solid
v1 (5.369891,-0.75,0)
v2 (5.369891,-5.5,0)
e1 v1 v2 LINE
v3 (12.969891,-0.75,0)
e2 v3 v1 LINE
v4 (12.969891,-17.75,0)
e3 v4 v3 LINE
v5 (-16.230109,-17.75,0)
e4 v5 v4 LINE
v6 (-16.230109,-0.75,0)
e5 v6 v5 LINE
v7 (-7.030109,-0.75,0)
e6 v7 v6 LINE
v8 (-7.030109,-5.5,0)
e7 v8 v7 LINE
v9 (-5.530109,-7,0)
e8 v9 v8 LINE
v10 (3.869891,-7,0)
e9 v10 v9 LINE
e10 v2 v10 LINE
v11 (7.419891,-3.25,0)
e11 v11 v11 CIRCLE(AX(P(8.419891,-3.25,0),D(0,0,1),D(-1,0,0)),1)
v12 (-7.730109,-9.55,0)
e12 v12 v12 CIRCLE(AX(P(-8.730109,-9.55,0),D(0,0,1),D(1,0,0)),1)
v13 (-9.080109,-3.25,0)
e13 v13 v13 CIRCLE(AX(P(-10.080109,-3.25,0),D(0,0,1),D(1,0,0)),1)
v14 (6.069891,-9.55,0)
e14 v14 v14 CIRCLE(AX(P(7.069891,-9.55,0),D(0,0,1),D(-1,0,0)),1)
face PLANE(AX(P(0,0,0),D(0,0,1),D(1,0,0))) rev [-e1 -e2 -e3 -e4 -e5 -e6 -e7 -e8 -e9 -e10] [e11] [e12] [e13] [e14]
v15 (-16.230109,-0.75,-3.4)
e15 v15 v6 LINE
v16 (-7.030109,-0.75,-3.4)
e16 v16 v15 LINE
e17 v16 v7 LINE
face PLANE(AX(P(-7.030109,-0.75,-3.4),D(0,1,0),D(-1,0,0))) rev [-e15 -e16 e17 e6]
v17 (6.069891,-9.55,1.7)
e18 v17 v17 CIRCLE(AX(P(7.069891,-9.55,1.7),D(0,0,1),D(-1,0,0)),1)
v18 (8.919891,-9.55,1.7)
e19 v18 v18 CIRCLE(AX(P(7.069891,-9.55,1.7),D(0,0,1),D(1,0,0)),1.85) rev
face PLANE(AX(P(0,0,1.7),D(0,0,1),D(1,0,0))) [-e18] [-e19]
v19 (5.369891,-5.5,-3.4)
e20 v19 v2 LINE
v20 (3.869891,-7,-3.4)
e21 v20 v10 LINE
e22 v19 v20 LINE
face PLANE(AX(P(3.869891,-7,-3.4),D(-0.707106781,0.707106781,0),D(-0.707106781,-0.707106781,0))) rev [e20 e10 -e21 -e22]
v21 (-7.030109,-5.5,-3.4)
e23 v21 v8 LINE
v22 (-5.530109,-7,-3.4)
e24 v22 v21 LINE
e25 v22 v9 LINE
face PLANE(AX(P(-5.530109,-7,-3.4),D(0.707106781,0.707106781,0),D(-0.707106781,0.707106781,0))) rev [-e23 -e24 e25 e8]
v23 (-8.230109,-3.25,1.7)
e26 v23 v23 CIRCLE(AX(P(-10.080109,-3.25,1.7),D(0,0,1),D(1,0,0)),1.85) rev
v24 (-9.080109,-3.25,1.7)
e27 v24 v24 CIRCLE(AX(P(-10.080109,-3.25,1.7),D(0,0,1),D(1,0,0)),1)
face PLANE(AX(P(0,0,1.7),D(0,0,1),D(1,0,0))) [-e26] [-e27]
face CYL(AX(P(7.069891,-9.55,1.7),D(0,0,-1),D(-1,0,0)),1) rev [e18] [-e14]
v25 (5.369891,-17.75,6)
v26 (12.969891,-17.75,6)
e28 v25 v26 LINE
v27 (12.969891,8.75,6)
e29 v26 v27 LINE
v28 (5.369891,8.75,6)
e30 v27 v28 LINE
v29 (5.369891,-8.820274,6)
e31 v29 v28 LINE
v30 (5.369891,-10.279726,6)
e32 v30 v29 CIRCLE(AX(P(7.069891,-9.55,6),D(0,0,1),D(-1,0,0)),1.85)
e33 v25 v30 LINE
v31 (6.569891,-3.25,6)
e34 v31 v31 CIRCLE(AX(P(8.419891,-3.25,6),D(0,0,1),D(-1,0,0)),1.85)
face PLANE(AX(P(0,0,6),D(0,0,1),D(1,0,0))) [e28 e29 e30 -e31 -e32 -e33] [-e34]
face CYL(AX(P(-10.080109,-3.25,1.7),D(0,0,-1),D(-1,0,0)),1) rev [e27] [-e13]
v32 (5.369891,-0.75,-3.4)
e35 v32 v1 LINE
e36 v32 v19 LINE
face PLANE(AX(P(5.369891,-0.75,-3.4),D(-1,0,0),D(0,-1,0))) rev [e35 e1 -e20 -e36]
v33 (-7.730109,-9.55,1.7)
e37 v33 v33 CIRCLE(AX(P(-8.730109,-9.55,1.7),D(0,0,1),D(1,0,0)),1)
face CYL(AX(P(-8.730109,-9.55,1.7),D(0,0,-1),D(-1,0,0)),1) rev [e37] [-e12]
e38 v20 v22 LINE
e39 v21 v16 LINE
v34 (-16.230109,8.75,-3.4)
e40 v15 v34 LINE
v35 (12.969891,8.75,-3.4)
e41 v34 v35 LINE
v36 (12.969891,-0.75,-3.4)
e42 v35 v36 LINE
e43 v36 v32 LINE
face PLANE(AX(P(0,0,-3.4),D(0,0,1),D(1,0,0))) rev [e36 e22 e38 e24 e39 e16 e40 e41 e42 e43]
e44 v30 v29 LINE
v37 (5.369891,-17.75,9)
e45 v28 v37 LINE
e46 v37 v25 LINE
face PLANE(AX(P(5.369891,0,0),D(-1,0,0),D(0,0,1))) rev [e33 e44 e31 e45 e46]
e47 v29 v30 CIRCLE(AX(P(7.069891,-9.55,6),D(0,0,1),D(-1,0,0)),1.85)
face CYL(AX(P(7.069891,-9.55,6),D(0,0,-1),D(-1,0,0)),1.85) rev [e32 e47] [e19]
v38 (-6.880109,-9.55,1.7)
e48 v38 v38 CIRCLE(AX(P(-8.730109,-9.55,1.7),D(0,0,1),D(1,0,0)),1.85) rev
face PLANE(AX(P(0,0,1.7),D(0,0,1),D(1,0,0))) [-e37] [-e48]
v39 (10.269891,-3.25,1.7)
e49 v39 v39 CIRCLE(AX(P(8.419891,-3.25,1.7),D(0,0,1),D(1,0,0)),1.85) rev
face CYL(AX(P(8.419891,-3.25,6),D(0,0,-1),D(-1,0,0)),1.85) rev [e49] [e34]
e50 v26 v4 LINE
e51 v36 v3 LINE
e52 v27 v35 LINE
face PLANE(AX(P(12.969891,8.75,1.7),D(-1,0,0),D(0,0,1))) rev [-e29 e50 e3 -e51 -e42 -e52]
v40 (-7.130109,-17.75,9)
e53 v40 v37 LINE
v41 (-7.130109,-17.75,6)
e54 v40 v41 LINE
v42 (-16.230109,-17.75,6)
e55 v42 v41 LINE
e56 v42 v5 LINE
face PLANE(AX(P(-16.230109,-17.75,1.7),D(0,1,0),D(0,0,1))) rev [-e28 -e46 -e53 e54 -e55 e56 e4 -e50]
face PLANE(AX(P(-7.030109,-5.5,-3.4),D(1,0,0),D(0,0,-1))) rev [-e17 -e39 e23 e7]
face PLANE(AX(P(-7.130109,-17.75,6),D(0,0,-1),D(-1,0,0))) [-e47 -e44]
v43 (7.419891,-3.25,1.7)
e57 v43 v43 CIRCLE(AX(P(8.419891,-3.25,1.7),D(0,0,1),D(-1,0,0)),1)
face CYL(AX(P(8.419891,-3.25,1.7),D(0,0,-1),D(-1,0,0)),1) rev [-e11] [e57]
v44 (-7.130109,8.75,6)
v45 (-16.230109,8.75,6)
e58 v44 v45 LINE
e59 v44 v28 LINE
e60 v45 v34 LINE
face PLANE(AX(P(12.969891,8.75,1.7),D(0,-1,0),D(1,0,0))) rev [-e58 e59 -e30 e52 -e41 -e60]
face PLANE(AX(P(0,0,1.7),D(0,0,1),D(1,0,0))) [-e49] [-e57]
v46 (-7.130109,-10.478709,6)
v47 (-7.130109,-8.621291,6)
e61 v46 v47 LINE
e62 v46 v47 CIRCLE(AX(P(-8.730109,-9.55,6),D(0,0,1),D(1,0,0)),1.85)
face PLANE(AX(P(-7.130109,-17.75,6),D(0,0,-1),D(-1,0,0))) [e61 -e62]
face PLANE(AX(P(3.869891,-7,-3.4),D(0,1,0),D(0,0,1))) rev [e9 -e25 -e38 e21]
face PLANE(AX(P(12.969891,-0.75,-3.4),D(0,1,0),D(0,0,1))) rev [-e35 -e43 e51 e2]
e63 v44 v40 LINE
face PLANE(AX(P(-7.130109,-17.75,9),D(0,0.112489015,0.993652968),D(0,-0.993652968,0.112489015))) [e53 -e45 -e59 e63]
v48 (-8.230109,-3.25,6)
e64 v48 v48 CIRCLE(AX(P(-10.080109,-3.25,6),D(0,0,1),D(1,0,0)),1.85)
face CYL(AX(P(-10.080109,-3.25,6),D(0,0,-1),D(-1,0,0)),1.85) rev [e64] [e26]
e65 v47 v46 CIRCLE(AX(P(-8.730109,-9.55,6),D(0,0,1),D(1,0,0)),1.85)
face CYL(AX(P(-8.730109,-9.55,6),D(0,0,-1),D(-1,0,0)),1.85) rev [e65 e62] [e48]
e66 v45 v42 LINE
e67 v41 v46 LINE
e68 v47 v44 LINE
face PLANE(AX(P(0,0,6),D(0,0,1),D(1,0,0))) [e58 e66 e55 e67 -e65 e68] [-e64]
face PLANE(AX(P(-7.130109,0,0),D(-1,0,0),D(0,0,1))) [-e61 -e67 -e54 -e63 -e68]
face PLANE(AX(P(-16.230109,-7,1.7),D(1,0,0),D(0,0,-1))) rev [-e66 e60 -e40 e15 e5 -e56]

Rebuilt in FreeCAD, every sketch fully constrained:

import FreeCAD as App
import Part
import Sketcher
from FreeCAD import Vector

doc = App.newDocument("Part")
params = doc.addObject("Spreadsheet::Sheet", "Params")
for row, (alias, value) in enumerate([
    ("sketch1_diameter", "2 mm"),
    ("sketch1_width", "29.2 mm"),
    ("sketch1_height", "26.5 mm"),
    ("pad1_length", "1.7 mm"),
    ("sketch2_diameter", "3.7 mm"),
    ("sketch2_width", "29.2 mm"),
    ("sketch2_height", "26.5 mm"),
    ("pad2_length", "4.3 mm"),
    ("sketch3_width", "9.4 mm"),
    ("sketch3_width2", "9.2 mm"),
    ("sketch3_width3", "29.2 mm"),
    ("sketch3_width4", "7.6 mm"),
    ("sketch3_height", "9.5 mm"),
    ("pad3_length", "3.4 mm"),
    ("sketch4_height", "3 mm"),
    ("sketch4_width", "26.5 mm"),
    ("pad4_length", "12.5 mm"),
], start=1):
    params.set(f"A{row}", alias)
    params.set(f"B{row}", "=" + value)
    params.setAlias(f"B{row}", alias)

body = doc.addObject("PartDesign::Body", "Body")

# Sketch on XY plane
sketch1 = body.newObject("Sketcher::SketchObject", "Sketch")
sketch1.AttachmentSupport = (doc.getObject("XY_Plane"), [""])
sketch1.MapMode = "FlatFace"
sketch1.addGeometry([
    Part.LineSegment(Vector(-16.2, 8.8, 0), Vector(-16.2, -17.8, 0)),  # 0
    Part.LineSegment(Vector(-16.2, -17.8, 0), Vector(13, -17.8, 0)),  # 1
    Part.LineSegment(Vector(13, -17.8, 0), Vector(13, 8.8, 0)),  # 2
    Part.LineSegment(Vector(13, 8.8, 0), Vector(-16.2, 8.8, 0)),  # 3
    Part.Circle(Vector(-8.7, -9.6, 0), Vector(0, 0, 1), 1),  # 4
    Part.Circle(Vector(7.1, -9.6, 0), Vector(0, 0, 1), 1),  # 5
    Part.Circle(Vector(-10.1, -3.2, 0), Vector(0, 0, 1), 1),  # 6
    Part.Circle(Vector(8.4, -3.2, 0), Vector(0, 0, 1), 1),  # 7
], False)
sketch1.addConstraint([
    Sketcher.Constraint("Coincident", 0, 2, 1, 1),
    Sketcher.Constraint("Coincident", 1, 2, 2, 1),
    Sketcher.Constraint("Coincident", 2, 2, 3, 1),
    Sketcher.Constraint("Coincident", 3, 2, 0, 1),
    Sketcher.Constraint("Vertical", 0),
    Sketcher.Constraint("Horizontal", 1),
    Sketcher.Constraint("Vertical", 2),
    Sketcher.Constraint("Horizontal", 3),
    Sketcher.Constraint("Equal", 4, 5),
    Sketcher.Constraint("Equal", 5, 6),
    Sketcher.Constraint("Equal", 6, 7),
    Sketcher.Constraint("Horizontal", 4, 3, 5, 3),
    Sketcher.Constraint("Horizontal", 6, 3, 7, 3),
    Sketcher.Constraint("Diameter", 4, 2.0),
    Sketcher.Constraint("DistanceX", 1, 1, 1, 2, 29.2),
    Sketcher.Constraint("DistanceY", 0, 2, 0, 1, 26.5),
    Sketcher.Constraint("DistanceY", 7, 3, 2, 2, 12.0),
    Sketcher.Constraint("DistanceX", 4, 3, 5, 3, 15.8),
    Sketcher.Constraint("DistanceY", 4, 3, 6, 3, 6.3),
    Sketcher.Constraint("DistanceX", 6, 3, 7, 3, 18.5),
    Sketcher.Constraint("DistanceX", 0, 2, 4, 3, 7.5),
    Sketcher.Constraint("DistanceY", 4, 3, -1, 1, 9.55),
    Sketcher.Constraint("DistanceX", 6, 3, 4, 3, 1.35),
    Sketcher.Constraint("DistanceX", 4, 3, -1, 1, 8.730109),
])
sketch1.setExpression("Constraints[13]", "Params.sketch1_diameter")
sketch1.setExpression("Constraints[14]", "Params.sketch1_width")
sketch1.setExpression("Constraints[15]", "Params.sketch1_height")
pad1 = body.newObject("PartDesign::Pad", "Pad")
pad1.Profile = sketch1
pad1.setExpression("Length", "Params.pad1_length")

# Sketch on XY plane
sketch2 = body.newObject("Sketcher::SketchObject", "Sketch001")
sketch2.AttachmentSupport = (doc.getObject("XY_Plane"), [""])
sketch2.MapMode = "FlatFace"
sketch2.AttachmentOffset = App.Placement(Vector(0, 0, 1.7), App.Rotation())
sketch2.addGeometry([
    Part.LineSegment(Vector(-16.2, 8.8, 0), Vector(-16.2, -17.8, 0)),  # 0
    Part.LineSegment(Vector(-16.2, -17.8, 0), Vector(13, -17.8, 0)),  # 1
    Part.LineSegment(Vector(13, -17.8, 0), Vector(13, 8.8, 0)),  # 2
    Part.LineSegment(Vector(13, 8.8, 0), Vector(-16.2, 8.8, 0)),  # 3
    Part.Circle(Vector(-8.7, -9.6, 0), Vector(0, 0, 1), 1.9),  # 4
    Part.Circle(Vector(7.1, -9.6, 0), Vector(0, 0, 1), 1.9),  # 5
    Part.Circle(Vector(-10.1, -3.2, 0), Vector(0, 0, 1), 1.9),  # 6
    Part.Circle(Vector(8.4, -3.2, 0), Vector(0, 0, 1), 1.9),  # 7
], False)
sketch2.addConstraint([
    Sketcher.Constraint("Coincident", 0, 2, 1, 1),
    Sketcher.Constraint("Coincident", 1, 2, 2, 1),
    Sketcher.Constraint("Coincident", 2, 2, 3, 1),
    Sketcher.Constraint("Coincident", 3, 2, 0, 1),
    Sketcher.Constraint("Vertical", 0),
    Sketcher.Constraint("Horizontal", 1),
    Sketcher.Constraint("Vertical", 2),
    Sketcher.Constraint("Horizontal", 3),
    Sketcher.Constraint("Equal", 4, 5),
    Sketcher.Constraint("Equal", 5, 6),
    Sketcher.Constraint("Equal", 6, 7),
    Sketcher.Constraint("Horizontal", 4, 3, 5, 3),
    Sketcher.Constraint("Horizontal", 6, 3, 7, 3),
    Sketcher.Constraint("Diameter", 4, 3.7),
    Sketcher.Constraint("DistanceX", 1, 1, 1, 2, 29.2),
    Sketcher.Constraint("DistanceY", 0, 2, 0, 1, 26.5),
    Sketcher.Constraint("DistanceY", 7, 3, 2, 2, 12.0),
    Sketcher.Constraint("DistanceX", 4, 3, 5, 3, 15.8),
    Sketcher.Constraint("DistanceY", 4, 3, 6, 3, 6.3),
    Sketcher.Constraint("DistanceX", 6, 3, 7, 3, 18.5),
    Sketcher.Constraint("DistanceX", 0, 2, 4, 3, 7.5),
    Sketcher.Constraint("DistanceY", 4, 3, -1, 1, 9.55),
    Sketcher.Constraint("DistanceX", 6, 3, 4, 3, 1.35),
    Sketcher.Constraint("DistanceX", 4, 3, -1, 1, 8.730109),
])
sketch2.setExpression("Constraints[13]", "Params.sketch2_diameter")
sketch2.setExpression("Constraints[14]", "Params.sketch2_width")
sketch2.setExpression("Constraints[15]", "Params.sketch2_height")
pad2 = body.newObject("PartDesign::Pad", "Pad001")
pad2.Profile = sketch2
pad2.setExpression("Length", "Params.pad2_length")

# Sketch on XY plane
sketch3 = body.newObject("Sketcher::SketchObject", "Sketch002")
sketch3.AttachmentSupport = (doc.getObject("XY_Plane"), [""])
sketch3.MapMode = "FlatFace"
sketch3.addGeometry([
    Part.LineSegment(Vector(3.9, -7, 0), Vector(-5.5, -7, 0)),  # 0
    Part.LineSegment(Vector(-5.5, -7, 0), Vector(-7, -5.5, 0)),  # 1
    Part.LineSegment(Vector(-7, -5.5, 0), Vector(-7, -0.8, 0)),  # 2
    Part.LineSegment(Vector(-7, -0.8, 0), Vector(-16.2, -0.8, 0)),  # 3
    Part.LineSegment(Vector(-16.2, -0.8, 0), Vector(-16.2, 8.8, 0)),  # 4
    Part.LineSegment(Vector(-16.2, 8.8, 0), Vector(13, 8.8, 0)),  # 5
    Part.LineSegment(Vector(13, 8.8, 0), Vector(13, -0.8, 0)),  # 6
    Part.LineSegment(Vector(13, -0.8, 0), Vector(5.4, -0.8, 0)),  # 7
    Part.LineSegment(Vector(5.4, -0.8, 0), Vector(5.4, -5.5, 0)),  # 8
    Part.LineSegment(Vector(5.4, -5.5, 0), Vector(3.9, -7, 0)),  # 9
], False)
sketch3.addConstraint([
    Sketcher.Constraint("Coincident", 0, 2, 1, 1),
    Sketcher.Constraint("Coincident", 1, 2, 2, 1),
    Sketcher.Constraint("Coincident", 2, 2, 3, 1),
    Sketcher.Constraint("Coincident", 3, 2, 4, 1),
    Sketcher.Constraint("Coincident", 4, 2, 5, 1),
    Sketcher.Constraint("Coincident", 5, 2, 6, 1),
    Sketcher.Constraint("Coincident", 6, 2, 7, 1),
    Sketcher.Constraint("Coincident", 7, 2, 8, 1),
    Sketcher.Constraint("Coincident", 8, 2, 9, 1),
    Sketcher.Constraint("Coincident", 9, 2, 0, 1),
    Sketcher.Constraint("Horizontal", 0),
    Sketcher.Constraint("Vertical", 2),
    Sketcher.Constraint("Horizontal", 3),
    Sketcher.Constraint("Vertical", 4),
    Sketcher.Constraint("Horizontal", 5),
    Sketcher.Constraint("Vertical", 6),
    Sketcher.Constraint("Horizontal", 7),
    Sketcher.Constraint("Vertical", 8),
    Sketcher.Constraint("Perpendicular", 1, 9),
    Sketcher.Constraint("Horizontal", 3, 2, 6, 2),
    Sketcher.Constraint("Horizontal", 1, 2, 8, 2),
    Sketcher.Constraint("Equal", 1, 9),
    Sketcher.Constraint("DistanceX", 0, 2, 0, 1, 9.4),
    Sketcher.Constraint("DistanceX", 3, 2, 3, 1, 9.2),
    Sketcher.Constraint("DistanceX", 5, 1, 5, 2, 29.2),
    Sketcher.Constraint("DistanceX", 7, 2, 7, 1, 7.6),
    Sketcher.Constraint("DistanceY", 4, 1, 4, 2, 9.5),
    Sketcher.Constraint("DistanceY", 0, 2, -1, 1, 7.0),
    Sketcher.Constraint("DistanceY", 2, 1, 2, 2, 4.75),
    Sketcher.Constraint("DistanceX", 0, 2, -1, 1, 5.530109),
])
sketch3.setExpression("Constraints[22]", "Params.sketch3_width")
sketch3.setExpression("Constraints[23]", "Params.sketch3_width2")
sketch3.setExpression("Constraints[24]", "Params.sketch3_width3")
sketch3.setExpression("Constraints[25]", "Params.sketch3_width4")
sketch3.setExpression("Constraints[26]", "Params.sketch3_height")
pad3 = body.newObject("PartDesign::Pad", "Pad002")
pad3.Profile = sketch3
pad3.setExpression("Length", "Params.pad3_length")
pad3.Reversed = True

# Sketch on YZ plane
sketch4 = body.newObject("Sketcher::SketchObject", "Sketch003")
sketch4.AttachmentSupport = (doc.getObject("YZ_Plane"), [""])
sketch4.MapMode = "FlatFace"
sketch4.AttachmentOffset = App.Placement(Vector(0, 0, 5.369891), App.Rotation())
sketch4.addGeometry([
    Part.LineSegment(Vector(-17.8, 6, 0), Vector(8.8, 6, 0)),
    Part.LineSegment(Vector(8.8, 6, 0), Vector(-17.8, 9, 0)),
    Part.LineSegment(Vector(-17.8, 9, 0), Vector(-17.8, 6, 0)),
], False)
sketch4.addConstraint([
    Sketcher.Constraint("Coincident", 0, 2, 1, 1),
    Sketcher.Constraint("Coincident", 1, 2, 2, 1),
    Sketcher.Constraint("Coincident", 2, 2, 0, 1),
    Sketcher.Constraint("Horizontal", 0),
    Sketcher.Constraint("Vertical", 2),
    Sketcher.Constraint("DistanceY", 2, 2, 2, 1, 3.0),
    Sketcher.Constraint("DistanceX", 0, 1, 0, 2, 26.5),
    Sketcher.Constraint("DistanceY", -1, 1, 0, 2, 6.0),
    Sketcher.Constraint("DistanceX", -1, 1, 0, 2, 8.75),
])
sketch4.setExpression("Constraints[5]", "Params.sketch4_height")
sketch4.setExpression("Constraints[6]", "Params.sketch4_width")
pad4 = body.newObject("PartDesign::Pad", "Pad003")
pad4.Profile = sketch4
pad4.setExpression("Length", "Params.pad4_length")
pad4.Reversed = True

doc.recompute()
